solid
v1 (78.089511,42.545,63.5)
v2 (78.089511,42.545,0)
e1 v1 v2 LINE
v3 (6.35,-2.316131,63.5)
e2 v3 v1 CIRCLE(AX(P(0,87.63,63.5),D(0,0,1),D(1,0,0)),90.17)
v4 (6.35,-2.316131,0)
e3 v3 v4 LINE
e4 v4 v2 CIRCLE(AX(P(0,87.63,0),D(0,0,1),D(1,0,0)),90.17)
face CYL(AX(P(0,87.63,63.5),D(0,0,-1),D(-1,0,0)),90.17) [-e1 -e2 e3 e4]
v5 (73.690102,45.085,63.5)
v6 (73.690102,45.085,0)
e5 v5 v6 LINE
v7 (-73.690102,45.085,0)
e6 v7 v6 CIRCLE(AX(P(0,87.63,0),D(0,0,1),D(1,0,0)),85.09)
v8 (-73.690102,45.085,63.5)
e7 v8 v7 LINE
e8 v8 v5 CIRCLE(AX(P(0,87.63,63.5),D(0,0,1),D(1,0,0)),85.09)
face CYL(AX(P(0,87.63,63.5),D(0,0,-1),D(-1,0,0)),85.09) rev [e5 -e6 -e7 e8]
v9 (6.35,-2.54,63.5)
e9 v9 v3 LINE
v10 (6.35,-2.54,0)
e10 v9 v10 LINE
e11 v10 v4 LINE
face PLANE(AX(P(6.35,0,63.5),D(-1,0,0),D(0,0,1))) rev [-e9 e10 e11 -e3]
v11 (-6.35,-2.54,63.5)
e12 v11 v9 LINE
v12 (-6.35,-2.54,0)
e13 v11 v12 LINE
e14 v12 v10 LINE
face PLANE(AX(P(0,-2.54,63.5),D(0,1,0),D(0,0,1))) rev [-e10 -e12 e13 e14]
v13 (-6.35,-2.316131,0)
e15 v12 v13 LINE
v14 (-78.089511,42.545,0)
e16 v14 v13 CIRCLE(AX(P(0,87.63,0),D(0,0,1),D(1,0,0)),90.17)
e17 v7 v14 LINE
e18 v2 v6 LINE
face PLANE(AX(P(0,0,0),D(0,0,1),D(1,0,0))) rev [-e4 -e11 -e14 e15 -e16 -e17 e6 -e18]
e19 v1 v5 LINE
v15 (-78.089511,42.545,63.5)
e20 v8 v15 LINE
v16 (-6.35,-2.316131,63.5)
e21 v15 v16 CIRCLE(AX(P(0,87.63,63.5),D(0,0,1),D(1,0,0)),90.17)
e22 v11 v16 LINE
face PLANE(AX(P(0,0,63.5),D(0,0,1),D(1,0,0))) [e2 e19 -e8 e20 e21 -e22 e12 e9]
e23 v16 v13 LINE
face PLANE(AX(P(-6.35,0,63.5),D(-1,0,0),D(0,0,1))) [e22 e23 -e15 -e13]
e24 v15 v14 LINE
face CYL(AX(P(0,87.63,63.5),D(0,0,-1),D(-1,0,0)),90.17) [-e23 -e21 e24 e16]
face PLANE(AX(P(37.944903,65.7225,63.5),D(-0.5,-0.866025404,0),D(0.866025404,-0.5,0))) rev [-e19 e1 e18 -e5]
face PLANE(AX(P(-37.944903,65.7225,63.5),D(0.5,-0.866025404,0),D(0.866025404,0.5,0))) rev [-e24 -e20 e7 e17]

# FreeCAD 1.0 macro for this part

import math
import FreeCAD as App
import Part
import Sketcher
from FreeCAD import Vector
Q = App.Units.Quantity

doc = App.newDocument("Part")
params = doc.addObject("Spreadsheet::Sheet", "Params")
for row, (alias, value) in enumerate([
    ("sketch1_radius", "3.55 in"),
    ("sketch1_radius2", "3.35 in"),
    ("sketch1_width", "0.5 in"),
    ("pad1_length", "2.5 in"),
], start=1):
    params.set(f"A{row}", alias)
    params.set(f"B{row}", "=" + value)
    params.setAlias(f"B{row}", alias)

body = doc.addObject("PartDesign::Body", "Body")

# Sketch on XY plane
sketch1 = body.newObject("Sketcher::SketchObject", "Sketch")
sketch1.AttachmentSupport = (doc.getObject("XY_Plane"), [""])
sketch1.MapMode = "FlatFace"
sketch1.addGeometry([
    Part.LineSegment(Vector(-6.35, -2.32, 0), Vector(-6.35, -2.54, 0)),  # 0
    Part.LineSegment(Vector(-6.35, -2.54, 0), Vector(6.35, -2.54, 0)),  # 1
    Part.LineSegment(Vector(6.35, -2.54, 0), Vector(6.35, -2.32, 0)),  # 2
    Part.ArcOfCircle(Part.Circle(Vector(0, 87.63, 0), Vector(0, 0, 1), 90.17), math.radians(-86), math.radians(-30)),  # 3
    Part.LineSegment(Vector(78.09, 42.55, 0), Vector(73.69, 45.09, 0)),  # 4
    Part.ArcOfCircle(Part.Circle(Vector(0, 87.63, 0), Vector(0, 0, 1), 85.09), math.radians(-150), math.radians(-30)),  # 5
    Part.LineSegment(Vector(-73.69, 45.09, 0), Vector(-78.09, 42.55, 0)),  # 6
    Part.ArcOfCircle(Part.Circle(Vector(0, 87.63, 0), Vector(0, 0, 1), 90.17), math.radians(-150), math.radians(-94)),  # 7
], False)
sketch1.addConstraint([
    Sketcher.Constraint("Coincident", 0, 2, 1, 1),
    Sketcher.Constraint("Coincident", 1, 2, 2, 1),
    Sketcher.Constraint("Coincident", 2, 2, 3, 1),
    Sketcher.Constraint("Coincident", 3, 2, 4, 1),
    Sketcher.Constraint("Coincident", 4, 2, 5, 2),
    Sketcher.Constraint("Coincident", 5, 1, 6, 1),
    Sketcher.Constraint("Coincident", 6, 2, 7, 1),
    Sketcher.Constraint("Coincident", 7, 2, 0, 1),
    Sketcher.Constraint("Vertical", 0),
    Sketcher.Constraint("Horizontal", 1),
    Sketcher.Constraint("Vertical", 2),
    Sketcher.Constraint("Coincident", 5, 3, 3, 3),
    Sketcher.Constraint("Coincident", 7, 3, 3, 3),
    Sketcher.Constraint("Equal", 3, 7),
    Sketcher.Constraint("Symmetric", 4, 2, 5, 1, -2),
    Sketcher.Constraint("Horizontal", 3, 2, 6, 2),
    Sketcher.Constraint("Horizontal", 2, 2, 7, 2),
    Sketcher.Constraint("Radius", 3, Q("3.55 in")),
    Sketcher.Constraint("Radius", 5, Q("3.35 in")),
    Sketcher.Constraint("DistanceX", 1, 1, 1, 2, Q("0.5 in")),
    Sketcher.Constraint("Angle", 4, Q("150 deg")),
    Sketcher.Constraint("DistanceY", 0, 2, -1, 1, Q("0.1 in")),
    Sketcher.Constraint("DistanceY", -1, 1, 3, 3, Q("3.45 in")),
    Sketcher.Constraint("DistanceY", -1, 1, 3, 2, Q("1.675 in")),
])
sketch1.setExpression("Constraints[17]", "Params.sketch1_radius")
sketch1.setExpression("Constraints[18]", "Params.sketch1_radius2")
sketch1.setExpression("Constraints[19]", "Params.sketch1_width")
pad1 = body.newObject("PartDesign::Pad", "Pad")
pad1.Profile = sketch1
pad1.setExpression("Length", "Params.pad1_length")

doc.recompute()
